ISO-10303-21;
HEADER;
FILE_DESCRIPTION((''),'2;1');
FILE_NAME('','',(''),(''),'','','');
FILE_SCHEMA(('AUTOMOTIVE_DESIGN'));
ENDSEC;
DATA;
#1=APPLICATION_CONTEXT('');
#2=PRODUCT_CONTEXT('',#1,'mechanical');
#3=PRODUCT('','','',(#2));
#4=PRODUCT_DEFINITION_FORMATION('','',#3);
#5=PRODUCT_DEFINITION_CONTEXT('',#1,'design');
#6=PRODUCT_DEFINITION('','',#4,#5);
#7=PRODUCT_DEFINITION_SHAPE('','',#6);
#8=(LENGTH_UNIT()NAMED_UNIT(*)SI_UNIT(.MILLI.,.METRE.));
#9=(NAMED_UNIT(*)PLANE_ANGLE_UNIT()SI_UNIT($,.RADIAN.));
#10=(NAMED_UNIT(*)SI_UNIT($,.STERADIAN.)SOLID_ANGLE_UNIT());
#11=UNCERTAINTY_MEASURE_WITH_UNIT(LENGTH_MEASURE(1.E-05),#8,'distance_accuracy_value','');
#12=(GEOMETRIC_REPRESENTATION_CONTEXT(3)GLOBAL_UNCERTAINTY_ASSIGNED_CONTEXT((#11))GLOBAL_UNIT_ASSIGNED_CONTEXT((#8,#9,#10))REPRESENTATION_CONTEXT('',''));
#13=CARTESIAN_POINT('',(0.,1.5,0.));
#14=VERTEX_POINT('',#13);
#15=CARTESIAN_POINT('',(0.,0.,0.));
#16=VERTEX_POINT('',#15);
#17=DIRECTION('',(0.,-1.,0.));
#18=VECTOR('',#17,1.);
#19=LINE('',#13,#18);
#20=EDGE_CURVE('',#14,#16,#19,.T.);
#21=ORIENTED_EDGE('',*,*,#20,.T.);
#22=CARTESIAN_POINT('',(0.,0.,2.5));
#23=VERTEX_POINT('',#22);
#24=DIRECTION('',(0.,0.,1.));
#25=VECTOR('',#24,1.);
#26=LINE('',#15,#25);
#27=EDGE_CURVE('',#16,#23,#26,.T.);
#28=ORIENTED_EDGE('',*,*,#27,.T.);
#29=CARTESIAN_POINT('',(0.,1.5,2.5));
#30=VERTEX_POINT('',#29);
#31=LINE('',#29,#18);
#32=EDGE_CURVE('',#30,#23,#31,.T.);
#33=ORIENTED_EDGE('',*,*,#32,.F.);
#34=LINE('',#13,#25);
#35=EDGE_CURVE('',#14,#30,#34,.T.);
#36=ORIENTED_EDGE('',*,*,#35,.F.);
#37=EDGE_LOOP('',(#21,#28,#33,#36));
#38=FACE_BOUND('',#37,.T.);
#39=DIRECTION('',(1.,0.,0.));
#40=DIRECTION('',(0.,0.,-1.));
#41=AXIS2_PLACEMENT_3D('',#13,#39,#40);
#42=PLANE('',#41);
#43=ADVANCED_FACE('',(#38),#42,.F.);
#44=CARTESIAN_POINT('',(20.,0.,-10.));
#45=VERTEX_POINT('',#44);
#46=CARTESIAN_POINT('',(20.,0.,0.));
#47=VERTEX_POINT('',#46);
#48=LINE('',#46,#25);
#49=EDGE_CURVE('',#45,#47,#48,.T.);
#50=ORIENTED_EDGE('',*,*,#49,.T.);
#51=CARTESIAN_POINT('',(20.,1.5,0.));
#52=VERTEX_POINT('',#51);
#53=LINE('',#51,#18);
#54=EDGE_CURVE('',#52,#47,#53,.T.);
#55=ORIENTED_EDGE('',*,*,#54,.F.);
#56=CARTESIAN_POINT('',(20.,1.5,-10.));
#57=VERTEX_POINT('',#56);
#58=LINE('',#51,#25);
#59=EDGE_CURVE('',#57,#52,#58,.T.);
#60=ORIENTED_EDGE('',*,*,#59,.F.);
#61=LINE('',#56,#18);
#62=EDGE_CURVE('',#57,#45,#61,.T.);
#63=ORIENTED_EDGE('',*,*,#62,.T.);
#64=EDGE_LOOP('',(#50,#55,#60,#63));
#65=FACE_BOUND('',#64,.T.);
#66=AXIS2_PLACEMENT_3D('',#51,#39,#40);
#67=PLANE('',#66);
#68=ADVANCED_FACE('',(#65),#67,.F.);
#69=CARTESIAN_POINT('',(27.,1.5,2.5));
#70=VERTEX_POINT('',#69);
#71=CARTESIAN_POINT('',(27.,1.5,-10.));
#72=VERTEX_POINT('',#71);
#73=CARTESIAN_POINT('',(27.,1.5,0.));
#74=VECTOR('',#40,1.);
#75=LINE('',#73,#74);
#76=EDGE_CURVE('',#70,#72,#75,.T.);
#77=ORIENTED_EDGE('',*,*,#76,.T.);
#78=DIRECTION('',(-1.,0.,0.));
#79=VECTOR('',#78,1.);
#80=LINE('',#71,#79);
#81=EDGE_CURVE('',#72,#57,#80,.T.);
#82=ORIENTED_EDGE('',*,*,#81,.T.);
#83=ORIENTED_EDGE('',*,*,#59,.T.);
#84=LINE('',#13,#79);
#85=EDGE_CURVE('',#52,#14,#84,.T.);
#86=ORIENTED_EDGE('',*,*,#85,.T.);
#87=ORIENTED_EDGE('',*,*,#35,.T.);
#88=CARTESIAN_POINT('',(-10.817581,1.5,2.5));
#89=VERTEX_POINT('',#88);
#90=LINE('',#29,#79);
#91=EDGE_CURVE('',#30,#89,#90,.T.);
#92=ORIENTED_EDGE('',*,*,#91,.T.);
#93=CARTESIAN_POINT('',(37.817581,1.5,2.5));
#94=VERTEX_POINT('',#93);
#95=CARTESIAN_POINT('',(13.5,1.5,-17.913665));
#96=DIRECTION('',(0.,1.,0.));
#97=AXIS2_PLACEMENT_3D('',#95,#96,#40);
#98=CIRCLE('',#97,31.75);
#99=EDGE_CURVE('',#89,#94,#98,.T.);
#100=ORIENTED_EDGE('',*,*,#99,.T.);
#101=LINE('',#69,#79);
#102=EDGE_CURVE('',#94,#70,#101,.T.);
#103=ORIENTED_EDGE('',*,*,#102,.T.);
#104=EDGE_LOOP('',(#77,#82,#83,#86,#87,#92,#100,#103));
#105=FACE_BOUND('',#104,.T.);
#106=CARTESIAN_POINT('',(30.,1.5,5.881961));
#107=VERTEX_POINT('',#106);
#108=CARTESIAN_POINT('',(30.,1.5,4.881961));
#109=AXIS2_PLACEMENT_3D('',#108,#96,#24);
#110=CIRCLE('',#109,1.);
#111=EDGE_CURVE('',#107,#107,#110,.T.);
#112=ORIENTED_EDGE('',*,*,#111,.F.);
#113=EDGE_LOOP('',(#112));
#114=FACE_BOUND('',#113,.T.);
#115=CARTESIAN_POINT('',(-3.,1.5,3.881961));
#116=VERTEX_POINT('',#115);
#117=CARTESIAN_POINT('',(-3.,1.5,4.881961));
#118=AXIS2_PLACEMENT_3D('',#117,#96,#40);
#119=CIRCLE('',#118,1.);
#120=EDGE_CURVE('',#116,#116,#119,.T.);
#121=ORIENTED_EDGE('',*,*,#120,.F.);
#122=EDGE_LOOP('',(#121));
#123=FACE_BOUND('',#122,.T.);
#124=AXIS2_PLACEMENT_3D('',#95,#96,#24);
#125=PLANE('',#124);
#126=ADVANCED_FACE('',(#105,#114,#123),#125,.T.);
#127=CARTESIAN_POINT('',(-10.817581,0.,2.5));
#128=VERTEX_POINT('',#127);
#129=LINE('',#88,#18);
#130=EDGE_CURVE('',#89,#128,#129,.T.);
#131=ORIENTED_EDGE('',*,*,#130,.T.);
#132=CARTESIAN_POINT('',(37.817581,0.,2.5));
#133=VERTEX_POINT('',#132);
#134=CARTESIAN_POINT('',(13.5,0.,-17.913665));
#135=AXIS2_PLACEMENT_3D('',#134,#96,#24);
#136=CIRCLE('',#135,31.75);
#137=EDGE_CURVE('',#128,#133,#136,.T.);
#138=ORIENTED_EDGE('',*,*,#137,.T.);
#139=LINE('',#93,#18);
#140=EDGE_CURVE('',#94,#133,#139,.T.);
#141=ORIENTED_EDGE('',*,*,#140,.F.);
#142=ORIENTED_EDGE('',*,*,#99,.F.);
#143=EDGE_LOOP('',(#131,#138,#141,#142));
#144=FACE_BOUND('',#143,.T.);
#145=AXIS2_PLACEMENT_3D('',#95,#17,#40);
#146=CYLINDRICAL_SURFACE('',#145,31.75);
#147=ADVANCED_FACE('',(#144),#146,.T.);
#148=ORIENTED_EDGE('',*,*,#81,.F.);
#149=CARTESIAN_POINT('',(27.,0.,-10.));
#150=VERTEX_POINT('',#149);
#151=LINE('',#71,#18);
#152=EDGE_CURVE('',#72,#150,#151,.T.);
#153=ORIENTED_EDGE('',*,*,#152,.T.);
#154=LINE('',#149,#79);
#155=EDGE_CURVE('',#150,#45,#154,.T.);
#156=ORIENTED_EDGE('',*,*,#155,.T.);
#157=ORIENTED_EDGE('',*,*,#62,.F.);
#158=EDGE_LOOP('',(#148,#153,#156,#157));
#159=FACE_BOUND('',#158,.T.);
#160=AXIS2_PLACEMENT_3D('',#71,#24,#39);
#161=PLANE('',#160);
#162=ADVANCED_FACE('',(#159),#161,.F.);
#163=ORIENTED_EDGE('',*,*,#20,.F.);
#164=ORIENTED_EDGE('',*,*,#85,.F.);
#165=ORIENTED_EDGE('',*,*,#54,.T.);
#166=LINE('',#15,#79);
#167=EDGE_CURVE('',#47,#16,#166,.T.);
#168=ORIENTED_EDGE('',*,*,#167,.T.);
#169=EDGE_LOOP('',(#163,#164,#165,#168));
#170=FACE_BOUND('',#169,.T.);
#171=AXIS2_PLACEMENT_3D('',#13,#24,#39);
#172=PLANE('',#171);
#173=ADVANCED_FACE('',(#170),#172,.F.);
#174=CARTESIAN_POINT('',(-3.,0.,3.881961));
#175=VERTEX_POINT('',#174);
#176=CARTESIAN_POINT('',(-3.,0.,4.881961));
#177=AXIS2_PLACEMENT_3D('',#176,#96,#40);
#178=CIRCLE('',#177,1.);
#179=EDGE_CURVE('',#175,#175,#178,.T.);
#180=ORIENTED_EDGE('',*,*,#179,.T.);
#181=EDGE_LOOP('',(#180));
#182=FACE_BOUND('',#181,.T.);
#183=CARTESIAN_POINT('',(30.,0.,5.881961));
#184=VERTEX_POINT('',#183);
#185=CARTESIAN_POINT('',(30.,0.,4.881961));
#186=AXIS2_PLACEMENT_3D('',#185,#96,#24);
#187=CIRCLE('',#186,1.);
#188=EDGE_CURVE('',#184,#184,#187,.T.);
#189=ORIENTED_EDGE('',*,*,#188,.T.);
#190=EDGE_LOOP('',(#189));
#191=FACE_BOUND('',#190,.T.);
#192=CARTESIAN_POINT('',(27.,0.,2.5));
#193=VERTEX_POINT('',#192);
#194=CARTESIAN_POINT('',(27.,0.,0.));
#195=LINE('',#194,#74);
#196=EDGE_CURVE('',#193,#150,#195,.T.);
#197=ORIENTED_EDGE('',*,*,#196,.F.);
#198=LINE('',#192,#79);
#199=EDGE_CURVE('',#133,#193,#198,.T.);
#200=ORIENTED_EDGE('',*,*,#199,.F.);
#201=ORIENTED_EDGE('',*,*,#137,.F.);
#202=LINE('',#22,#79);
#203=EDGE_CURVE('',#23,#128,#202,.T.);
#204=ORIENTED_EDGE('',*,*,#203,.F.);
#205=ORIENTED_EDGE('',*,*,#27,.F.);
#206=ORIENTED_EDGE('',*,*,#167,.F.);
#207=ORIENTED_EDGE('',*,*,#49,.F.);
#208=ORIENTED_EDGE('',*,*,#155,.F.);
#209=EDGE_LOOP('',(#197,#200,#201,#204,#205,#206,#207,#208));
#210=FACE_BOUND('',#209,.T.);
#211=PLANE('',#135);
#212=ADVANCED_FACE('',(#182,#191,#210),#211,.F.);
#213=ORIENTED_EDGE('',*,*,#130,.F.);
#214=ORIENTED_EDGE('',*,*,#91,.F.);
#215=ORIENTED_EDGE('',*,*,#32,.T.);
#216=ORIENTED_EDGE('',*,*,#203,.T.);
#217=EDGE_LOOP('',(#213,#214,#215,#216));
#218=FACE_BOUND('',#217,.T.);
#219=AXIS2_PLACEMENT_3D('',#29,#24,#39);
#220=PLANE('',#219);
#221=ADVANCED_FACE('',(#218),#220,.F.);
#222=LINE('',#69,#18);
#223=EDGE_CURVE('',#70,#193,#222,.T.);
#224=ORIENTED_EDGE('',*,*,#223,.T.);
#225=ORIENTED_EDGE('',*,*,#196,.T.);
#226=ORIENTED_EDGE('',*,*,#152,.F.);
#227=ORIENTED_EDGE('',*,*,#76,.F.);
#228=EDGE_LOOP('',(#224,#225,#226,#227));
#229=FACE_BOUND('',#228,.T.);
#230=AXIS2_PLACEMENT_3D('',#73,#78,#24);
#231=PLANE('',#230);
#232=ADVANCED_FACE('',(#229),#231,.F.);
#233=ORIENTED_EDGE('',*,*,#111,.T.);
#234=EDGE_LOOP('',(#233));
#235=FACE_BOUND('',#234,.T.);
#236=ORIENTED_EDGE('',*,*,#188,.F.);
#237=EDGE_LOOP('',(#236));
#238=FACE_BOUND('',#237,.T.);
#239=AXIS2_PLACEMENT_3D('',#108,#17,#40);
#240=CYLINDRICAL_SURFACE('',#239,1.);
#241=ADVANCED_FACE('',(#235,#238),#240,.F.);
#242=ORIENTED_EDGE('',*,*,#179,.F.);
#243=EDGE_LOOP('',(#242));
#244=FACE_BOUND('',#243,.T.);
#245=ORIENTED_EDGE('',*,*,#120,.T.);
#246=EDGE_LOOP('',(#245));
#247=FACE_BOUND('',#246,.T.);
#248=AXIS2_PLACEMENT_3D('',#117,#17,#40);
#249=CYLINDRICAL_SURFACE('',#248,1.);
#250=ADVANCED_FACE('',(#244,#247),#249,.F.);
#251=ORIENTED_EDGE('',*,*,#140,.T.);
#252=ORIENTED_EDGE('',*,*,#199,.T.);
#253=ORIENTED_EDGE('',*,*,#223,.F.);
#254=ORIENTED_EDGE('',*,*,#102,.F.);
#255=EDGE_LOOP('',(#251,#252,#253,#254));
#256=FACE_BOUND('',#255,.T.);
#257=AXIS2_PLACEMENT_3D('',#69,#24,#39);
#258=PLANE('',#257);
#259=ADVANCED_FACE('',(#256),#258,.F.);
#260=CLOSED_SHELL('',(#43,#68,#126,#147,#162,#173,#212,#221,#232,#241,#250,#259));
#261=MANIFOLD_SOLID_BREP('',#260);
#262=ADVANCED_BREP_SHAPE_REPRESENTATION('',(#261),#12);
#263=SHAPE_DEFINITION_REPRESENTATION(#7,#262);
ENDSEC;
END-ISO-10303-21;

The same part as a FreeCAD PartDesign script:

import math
import FreeCAD as App
import Part
import Sketcher
Q = App.Units.Quantity

doc = App.newDocument("Part")
body = doc.addObject("PartDesign::Body", "Body")

sketch1 = doc.addObject("Sketcher::SketchObject", "Sketch")
body.addObject(sketch1)
sketch1.AttachmentSupport = (doc.XZ_Plane, [""])
sketch1.MapMode = "FlatFace"
sketch1.addGeometry(Part.LineSegment(App.Vector(20, 0, 0), App.Vector(0, 0, 0)), False)
sketch1.addGeometry(Part.LineSegment(App.Vector(0, 0, 0), App.Vector(0, 2.5, 0)), False)
sketch1.addGeometry(Part.LineSegment(App.Vector(0, 2.5, 0), App.Vector(-10.8, 2.5, 0)), False)
sketch1.addGeometry(Part.ArcOfCircle(Part.Circle(App.Vector(13.5, -17.9, 0), App.Vector(0, 0, 1), 31.8), math.radians(115), math.radians(140)), False)
sketch1.addGeometry(Part.ArcOfCircle(Part.Circle(App.Vector(13.5, -17.9, 0), App.Vector(0, 0, 1), 31.7), math.radians(65), math.radians(115)), False)
sketch1.addGeometry(Part.ArcOfCircle(Part.Circle(App.Vector(13.5, -17.9, 0), App.Vector(0, 0, 1), 31.8), math.radians(40), math.radians(65)), False)
sketch1.addGeometry(Part.LineSegment(App.Vector(37.8, 2.5, 0), App.Vector(27, 2.5, 0)), False)
sketch1.addGeometry(Part.LineSegment(App.Vector(27, 2.5, 0), App.Vector(27, -10, 0)), False)
sketch1.addGeometry(Part.LineSegment(App.Vector(27, -10, 0), App.Vector(20, -10, 0)), False)
sketch1.addGeometry(Part.LineSegment(App.Vector(20, -10, 0), App.Vector(20, 0, 0)), False)
sketch1.addGeometry(Part.Circle(App.Vector(30, 4.9, 0), App.Vector(0, 0, 1), 1), False)
sketch1.addGeometry(Part.Circle(App.Vector(-3, 4.9, 0), App.Vector(0, 0, 1), 1), False)
sketch1.addConstraint(Sketcher.Constraint("Coincident", 0, 2, 1, 1))
sketch1.addConstraint(Sketcher.Constraint("Coincident", 1, 2, 2, 1))
sketch1.addConstraint(Sketcher.Constraint("Coincident", 2, 2, 3, 2))
sketch1.addConstraint(Sketcher.Constraint("Tangent", 3, 1, 4, 2))
sketch1.addConstraint(Sketcher.Constraint("Tangent", 4, 1, 5, 2))
sketch1.addConstraint(Sketcher.Constraint("Coincident", 5, 1, 6, 1))
sketch1.addConstraint(Sketcher.Constraint("Coincident", 6, 2, 7, 1))
sketch1.addConstraint(Sketcher.Constraint("Coincident", 7, 2, 8, 1))
sketch1.addConstraint(Sketcher.Constraint("Coincident", 8, 2, 9, 1))
sketch1.addConstraint(Sketcher.Constraint("Coincident", 9, 2, 0, 1))
sketch1.addConstraint(Sketcher.Constraint("Horizontal", 0))
sketch1.addConstraint(Sketcher.Constraint("Vertical", 1))
sketch1.addConstraint(Sketcher.Constraint("Horizontal", 2))
sketch1.addConstraint(Sketcher.Constraint("Horizontal", 6))
sketch1.addConstraint(Sketcher.Constraint("Vertical", 7))
sketch1.addConstraint(Sketcher.Constraint("Horizontal", 8))
sketch1.addConstraint(Sketcher.Constraint("Vertical", 9))
sketch1.addConstraint(Sketcher.Constraint("Coincident", 0, 2, -1, 1))
sketch1.addConstraint(Sketcher.Constraint("Coincident", 5, 3, 3, 3))
sketch1.addConstraint(Sketcher.Constraint("Equal", 10, 11))
sketch1.addConstraint(Sketcher.Constraint("PointOnObject", 3, 1, -2))
sketch1.addConstraint(Sketcher.Constraint("Horizontal", 10, 3, 11, 3))
sketch1.addConstraint(Sketcher.Constraint("Horizontal", 3, 1, 4, 1))
sketch1.addConstraint(Sketcher.Constraint("Horizontal", 2, 2, 5, 1))
sketch1.addConstraint(Sketcher.Constraint("Vertical", 4, 1, 6, 2))
sketch1.addConstraint(Sketcher.Constraint("Diameter", 10, Q("2 mm")))
sketch1.addConstraint(Sketcher.Constraint("DistanceX", 0, 2, 0, 1, Q("20 mm")))
sketch1.addConstraint(Sketcher.Constraint("DistanceX", 8, 2, 8, 1, Q("7 mm")))
sketch1.addConstraint(Sketcher.Constraint("DistanceY", 9, 1, 9, 2, Q("10 mm")))
sketch1.addConstraint(Sketcher.Constraint("Radius", 3, Q("31.75 mm")))
sketch1.addConstraint(Sketcher.Constraint("DistanceY", 1, 1, 1, 2, Q("2.5 mm")))
sketch1.addConstraint(Sketcher.Constraint("DistanceX", -1, 1, 10, 3, Q("30 mm")))
sketch1.addConstraint(Sketcher.Constraint("DistanceX", 11, 3, -1, 1, Q("3 mm")))
sketch1.addConstraint(Sketcher.Constraint("DistanceX", 2, 2, 2, 1, Q("10.817581 mm")))
sketch1.addConstraint(Sketcher.Constraint("DistanceY", -1, 1, 10, 3, Q("4.881961 mm")))
pad1 = doc.addObject("PartDesign::Pad", "Pad")
body.addObject(pad1)
pad1.Profile = sketch1
pad1.Length = 1.5
pad1.Reversed = True

doc.recompute()
